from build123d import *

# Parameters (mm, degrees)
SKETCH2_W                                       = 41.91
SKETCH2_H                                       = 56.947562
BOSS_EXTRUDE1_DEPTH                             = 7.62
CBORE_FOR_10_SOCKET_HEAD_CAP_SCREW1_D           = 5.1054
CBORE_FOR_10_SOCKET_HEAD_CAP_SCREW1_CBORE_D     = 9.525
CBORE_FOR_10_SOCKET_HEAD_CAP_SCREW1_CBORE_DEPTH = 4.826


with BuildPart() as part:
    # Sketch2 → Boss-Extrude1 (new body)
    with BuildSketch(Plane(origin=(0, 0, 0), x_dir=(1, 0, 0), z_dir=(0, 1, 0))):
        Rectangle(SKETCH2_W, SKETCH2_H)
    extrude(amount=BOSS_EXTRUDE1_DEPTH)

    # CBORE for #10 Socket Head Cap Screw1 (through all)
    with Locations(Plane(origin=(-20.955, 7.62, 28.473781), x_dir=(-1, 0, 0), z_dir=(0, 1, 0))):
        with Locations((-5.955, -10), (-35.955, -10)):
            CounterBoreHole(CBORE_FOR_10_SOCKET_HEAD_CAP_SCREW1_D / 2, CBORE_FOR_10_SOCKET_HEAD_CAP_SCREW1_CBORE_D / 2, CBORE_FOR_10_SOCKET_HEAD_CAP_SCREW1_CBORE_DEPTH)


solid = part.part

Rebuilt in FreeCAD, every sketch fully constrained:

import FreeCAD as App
import Part
import Sketcher
Q = App.Units.Quantity


def add_polygon(sketch, points):
    """Adds a closed chain of lines whose ends are joined by coincident constraints."""
    first, n = sketch.GeometryCount, len(points)
    for a, b in zip(points, points[1:] + points[:1]):
        sketch.addGeometry(Part.LineSegment(App.Vector(*a, 0), App.Vector(*b, 0)), False)
    for i in range(n):
        sketch.addConstraint(Sketcher.Constraint("Coincident", first + i, 2, first + (i + 1) % n, 1))

doc = App.newDocument("Part")
body = doc.addObject("PartDesign::Body", "Body")

# Sketch on XZ plane
sketch1 = body.newObject("Sketcher::SketchObject", "Sketch")
sketch1.AttachmentSupport = (doc.getObject("XZ_Plane"), [""])
sketch1.MapMode = "FlatFace"
add_polygon(sketch1, [(-20.955, -28.473781), (-20.955, 28.473781), (20.955, 28.473781), (20.955, -28.473781)])  # lines 0-3
sketch1.addConstraint([
    Sketcher.Constraint("Vertical", 0),
    Sketcher.Constraint("Horizontal", 1),
    Sketcher.Constraint("Vertical", 2),
    Sketcher.Constraint("Horizontal", 3),
    Sketcher.Constraint("Symmetric", 0, 2, 2, 2, -1, 1),
    Sketcher.Constraint("DistanceX", 1, 1, 1, 2, Q("1.65 in")),
    Sketcher.Constraint("DistanceY", 0, 1, 0, 2, Q("56.947562 mm")),
])
pad1 = body.newObject("PartDesign::Pad", "Pad")
pad1.Profile = sketch1
pad1.Length = Q("0.3 in")
pad1.Reversed = True

# Sketch on XZ plane
sketch2 = body.newObject("Sketcher::SketchObject", "Sketch001")
sketch2.AttachmentSupport = (doc.getObject("XZ_Plane"), [""])
sketch2.MapMode = "FlatFace"
sketch2.AttachmentOffset = App.Placement(App.Vector(0, 0, -0.3 * 25.4), App.Rotation())
sketch2.addGeometry([
    Part.Circle(App.Vector(-15, 18.473781, 0), App.Vector(0, 0, 1), 2.5527),
    Part.Circle(App.Vector(15, 18.473781, 0), App.Vector(0, 0, 1), 2.5527),
], False)
sketch2.addConstraint([
    Sketcher.Constraint("Equal", 0, 1),
    Sketcher.Constraint("Symmetric", 0, 3, 1, 3, -2),
    Sketcher.Constraint("Diameter", 0, Q("0.201 in")),
    Sketcher.Constraint("DistanceX", 0, 3, -1, 1, Q("15 mm")),
    Sketcher.Constraint("DistanceY", -1, 1, 0, 3, Q("18.473781 mm")),
])
doc.recompute()
hole = body.newObject("PartDesign::Hole", "Hole")
hole.Profile = sketch2
hole.ThreadType = "None"
hole.Diameter = Q("0.201 in")
hole.DepthType = "ThroughAll"
hole.HoleCutType = "Counterbore"
hole.HoleCutDiameter = Q("0.375 in")
hole.HoleCutDepth = Q("0.19 in")
hole.Reversed = True

doc.recompute()
